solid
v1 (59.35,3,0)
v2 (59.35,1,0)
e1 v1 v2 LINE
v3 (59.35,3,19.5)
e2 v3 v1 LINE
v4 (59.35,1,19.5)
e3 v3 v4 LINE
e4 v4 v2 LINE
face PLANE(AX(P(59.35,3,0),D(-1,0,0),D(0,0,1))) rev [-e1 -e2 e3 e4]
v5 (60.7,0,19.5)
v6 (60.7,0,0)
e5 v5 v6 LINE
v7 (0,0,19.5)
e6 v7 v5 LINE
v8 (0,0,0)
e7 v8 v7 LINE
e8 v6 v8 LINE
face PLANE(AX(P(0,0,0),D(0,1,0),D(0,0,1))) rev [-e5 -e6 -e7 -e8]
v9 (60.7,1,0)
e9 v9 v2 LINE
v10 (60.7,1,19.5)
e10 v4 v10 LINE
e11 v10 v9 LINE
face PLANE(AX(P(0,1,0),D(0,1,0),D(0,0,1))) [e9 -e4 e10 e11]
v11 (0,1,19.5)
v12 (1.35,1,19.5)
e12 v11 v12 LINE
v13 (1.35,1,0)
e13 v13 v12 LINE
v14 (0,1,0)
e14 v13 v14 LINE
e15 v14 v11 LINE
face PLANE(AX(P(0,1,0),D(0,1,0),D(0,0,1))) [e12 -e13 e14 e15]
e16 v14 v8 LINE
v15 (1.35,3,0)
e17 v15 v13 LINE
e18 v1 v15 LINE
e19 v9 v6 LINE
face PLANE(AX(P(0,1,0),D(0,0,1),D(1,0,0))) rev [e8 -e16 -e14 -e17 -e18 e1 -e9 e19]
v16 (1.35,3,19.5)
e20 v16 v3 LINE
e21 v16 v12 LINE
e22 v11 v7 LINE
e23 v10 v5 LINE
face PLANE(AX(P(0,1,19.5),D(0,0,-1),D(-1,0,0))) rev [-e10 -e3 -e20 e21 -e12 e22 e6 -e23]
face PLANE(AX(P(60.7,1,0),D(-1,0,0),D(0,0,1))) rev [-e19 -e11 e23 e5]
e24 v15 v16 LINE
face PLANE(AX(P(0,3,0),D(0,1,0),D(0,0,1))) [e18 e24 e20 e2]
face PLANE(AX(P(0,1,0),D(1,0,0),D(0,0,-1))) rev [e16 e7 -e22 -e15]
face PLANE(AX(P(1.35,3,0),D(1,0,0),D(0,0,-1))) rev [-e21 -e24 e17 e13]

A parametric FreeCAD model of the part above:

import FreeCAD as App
import Part
import Sketcher

V = App.Vector

doc = App.newDocument("Part")
body = doc.addObject("PartDesign::Body", "Body")

# Sketch on XZ plane
sketch1 = body.newObject("Sketcher::SketchObject", "Sketch")
sketch1.AttachmentSupport = (doc.getObject("XZ_Plane"), [""])
sketch1.MapMode = "FlatFace"
sketch1.addGeometry([
    Part.LineSegment(V(0, 0, 0), V(0, 19.5, 0)),
    Part.LineSegment(V(0, 19.5, 0), V(60.7, 19.5, 0)),
    Part.LineSegment(V(60.7, 19.5, 0), V(60.7, 0, 0)),
    Part.LineSegment(V(60.7, 0, 0), V(0, 0, 0)),
], False)
sketch1.addConstraint([
    Sketcher.Constraint("Coincident", 0, 2, 1, 1),
    Sketcher.Constraint("Coincident", 1, 2, 2, 1),
    Sketcher.Constraint("Coincident", 2, 2, 3, 1),
    Sketcher.Constraint("Coincident", 3, 2, 0, 1),
    Sketcher.Constraint("Vertical", 0),
    Sketcher.Constraint("Horizontal", 1),
    Sketcher.Constraint("Vertical", 2),
    Sketcher.Constraint("Horizontal", 3),
    Sketcher.Constraint("Coincident", 3, 2, -1, 1),
    Sketcher.Constraint("DistanceX", 1, 1, 1, 2, 60.7),
    Sketcher.Constraint("DistanceY", 0, 1, 0, 2, 19.5),
])
pad1 = body.newObject("PartDesign::Pad", "Pad")
pad1.Profile = sketch1
pad1.Length = 1
pad1.Reversed = True

# Sketch on XZ plane
sketch2 = body.newObject("Sketcher::SketchObject", "Sketch001")
sketch2.AttachmentSupport = (doc.getObject("XZ_Plane"), [""])
sketch2.MapMode = "FlatFace"
sketch2.AttachmentOffset = App.Placement(V(0, 0, -1), App.Rotation())
sketch2.addGeometry([
    Part.LineSegment(V(1.35, 0, 0), V(1.35, 19.5, 0)),
    Part.LineSegment(V(1.35, 19.5, 0), V(59.35, 19.5, 0)),
    Part.LineSegment(V(59.35, 19.5, 0), V(59.35, 0, 0)),
    Part.LineSegment(V(59.35, 0, 0), V(1.35, 0, 0)),
], False)
sketch2.addConstraint([
    Sketcher.Constraint("Coincident", 0, 2, 1, 1),
    Sketcher.Constraint("Coincident", 1, 2, 2, 1),
    Sketcher.Constraint("Coincident", 2, 2, 3, 1),
    Sketcher.Constraint("Coincident", 3, 2, 0, 1),
    Sketcher.Constraint("Vertical", 0),
    Sketcher.Constraint("Horizontal", 1),
    Sketcher.Constraint("Vertical", 2),
    Sketcher.Constraint("Horizontal", 3),
    Sketcher.Constraint("PointOnObject", 2, 2, -1),
    Sketcher.Constraint("DistanceX", 1, 1, 1, 2, 58.0),
    Sketcher.Constraint("DistanceY", 0, 1, 0, 2, 19.5),
    Sketcher.Constraint("DistanceX", -1, 1, 0, 2, 1.35),
])
pad2 = body.newObject("PartDesign::Pad", "Pad001")
pad2.Profile = sketch2
pad2.Length = 2
pad2.Reversed = True

doc.recompute()
